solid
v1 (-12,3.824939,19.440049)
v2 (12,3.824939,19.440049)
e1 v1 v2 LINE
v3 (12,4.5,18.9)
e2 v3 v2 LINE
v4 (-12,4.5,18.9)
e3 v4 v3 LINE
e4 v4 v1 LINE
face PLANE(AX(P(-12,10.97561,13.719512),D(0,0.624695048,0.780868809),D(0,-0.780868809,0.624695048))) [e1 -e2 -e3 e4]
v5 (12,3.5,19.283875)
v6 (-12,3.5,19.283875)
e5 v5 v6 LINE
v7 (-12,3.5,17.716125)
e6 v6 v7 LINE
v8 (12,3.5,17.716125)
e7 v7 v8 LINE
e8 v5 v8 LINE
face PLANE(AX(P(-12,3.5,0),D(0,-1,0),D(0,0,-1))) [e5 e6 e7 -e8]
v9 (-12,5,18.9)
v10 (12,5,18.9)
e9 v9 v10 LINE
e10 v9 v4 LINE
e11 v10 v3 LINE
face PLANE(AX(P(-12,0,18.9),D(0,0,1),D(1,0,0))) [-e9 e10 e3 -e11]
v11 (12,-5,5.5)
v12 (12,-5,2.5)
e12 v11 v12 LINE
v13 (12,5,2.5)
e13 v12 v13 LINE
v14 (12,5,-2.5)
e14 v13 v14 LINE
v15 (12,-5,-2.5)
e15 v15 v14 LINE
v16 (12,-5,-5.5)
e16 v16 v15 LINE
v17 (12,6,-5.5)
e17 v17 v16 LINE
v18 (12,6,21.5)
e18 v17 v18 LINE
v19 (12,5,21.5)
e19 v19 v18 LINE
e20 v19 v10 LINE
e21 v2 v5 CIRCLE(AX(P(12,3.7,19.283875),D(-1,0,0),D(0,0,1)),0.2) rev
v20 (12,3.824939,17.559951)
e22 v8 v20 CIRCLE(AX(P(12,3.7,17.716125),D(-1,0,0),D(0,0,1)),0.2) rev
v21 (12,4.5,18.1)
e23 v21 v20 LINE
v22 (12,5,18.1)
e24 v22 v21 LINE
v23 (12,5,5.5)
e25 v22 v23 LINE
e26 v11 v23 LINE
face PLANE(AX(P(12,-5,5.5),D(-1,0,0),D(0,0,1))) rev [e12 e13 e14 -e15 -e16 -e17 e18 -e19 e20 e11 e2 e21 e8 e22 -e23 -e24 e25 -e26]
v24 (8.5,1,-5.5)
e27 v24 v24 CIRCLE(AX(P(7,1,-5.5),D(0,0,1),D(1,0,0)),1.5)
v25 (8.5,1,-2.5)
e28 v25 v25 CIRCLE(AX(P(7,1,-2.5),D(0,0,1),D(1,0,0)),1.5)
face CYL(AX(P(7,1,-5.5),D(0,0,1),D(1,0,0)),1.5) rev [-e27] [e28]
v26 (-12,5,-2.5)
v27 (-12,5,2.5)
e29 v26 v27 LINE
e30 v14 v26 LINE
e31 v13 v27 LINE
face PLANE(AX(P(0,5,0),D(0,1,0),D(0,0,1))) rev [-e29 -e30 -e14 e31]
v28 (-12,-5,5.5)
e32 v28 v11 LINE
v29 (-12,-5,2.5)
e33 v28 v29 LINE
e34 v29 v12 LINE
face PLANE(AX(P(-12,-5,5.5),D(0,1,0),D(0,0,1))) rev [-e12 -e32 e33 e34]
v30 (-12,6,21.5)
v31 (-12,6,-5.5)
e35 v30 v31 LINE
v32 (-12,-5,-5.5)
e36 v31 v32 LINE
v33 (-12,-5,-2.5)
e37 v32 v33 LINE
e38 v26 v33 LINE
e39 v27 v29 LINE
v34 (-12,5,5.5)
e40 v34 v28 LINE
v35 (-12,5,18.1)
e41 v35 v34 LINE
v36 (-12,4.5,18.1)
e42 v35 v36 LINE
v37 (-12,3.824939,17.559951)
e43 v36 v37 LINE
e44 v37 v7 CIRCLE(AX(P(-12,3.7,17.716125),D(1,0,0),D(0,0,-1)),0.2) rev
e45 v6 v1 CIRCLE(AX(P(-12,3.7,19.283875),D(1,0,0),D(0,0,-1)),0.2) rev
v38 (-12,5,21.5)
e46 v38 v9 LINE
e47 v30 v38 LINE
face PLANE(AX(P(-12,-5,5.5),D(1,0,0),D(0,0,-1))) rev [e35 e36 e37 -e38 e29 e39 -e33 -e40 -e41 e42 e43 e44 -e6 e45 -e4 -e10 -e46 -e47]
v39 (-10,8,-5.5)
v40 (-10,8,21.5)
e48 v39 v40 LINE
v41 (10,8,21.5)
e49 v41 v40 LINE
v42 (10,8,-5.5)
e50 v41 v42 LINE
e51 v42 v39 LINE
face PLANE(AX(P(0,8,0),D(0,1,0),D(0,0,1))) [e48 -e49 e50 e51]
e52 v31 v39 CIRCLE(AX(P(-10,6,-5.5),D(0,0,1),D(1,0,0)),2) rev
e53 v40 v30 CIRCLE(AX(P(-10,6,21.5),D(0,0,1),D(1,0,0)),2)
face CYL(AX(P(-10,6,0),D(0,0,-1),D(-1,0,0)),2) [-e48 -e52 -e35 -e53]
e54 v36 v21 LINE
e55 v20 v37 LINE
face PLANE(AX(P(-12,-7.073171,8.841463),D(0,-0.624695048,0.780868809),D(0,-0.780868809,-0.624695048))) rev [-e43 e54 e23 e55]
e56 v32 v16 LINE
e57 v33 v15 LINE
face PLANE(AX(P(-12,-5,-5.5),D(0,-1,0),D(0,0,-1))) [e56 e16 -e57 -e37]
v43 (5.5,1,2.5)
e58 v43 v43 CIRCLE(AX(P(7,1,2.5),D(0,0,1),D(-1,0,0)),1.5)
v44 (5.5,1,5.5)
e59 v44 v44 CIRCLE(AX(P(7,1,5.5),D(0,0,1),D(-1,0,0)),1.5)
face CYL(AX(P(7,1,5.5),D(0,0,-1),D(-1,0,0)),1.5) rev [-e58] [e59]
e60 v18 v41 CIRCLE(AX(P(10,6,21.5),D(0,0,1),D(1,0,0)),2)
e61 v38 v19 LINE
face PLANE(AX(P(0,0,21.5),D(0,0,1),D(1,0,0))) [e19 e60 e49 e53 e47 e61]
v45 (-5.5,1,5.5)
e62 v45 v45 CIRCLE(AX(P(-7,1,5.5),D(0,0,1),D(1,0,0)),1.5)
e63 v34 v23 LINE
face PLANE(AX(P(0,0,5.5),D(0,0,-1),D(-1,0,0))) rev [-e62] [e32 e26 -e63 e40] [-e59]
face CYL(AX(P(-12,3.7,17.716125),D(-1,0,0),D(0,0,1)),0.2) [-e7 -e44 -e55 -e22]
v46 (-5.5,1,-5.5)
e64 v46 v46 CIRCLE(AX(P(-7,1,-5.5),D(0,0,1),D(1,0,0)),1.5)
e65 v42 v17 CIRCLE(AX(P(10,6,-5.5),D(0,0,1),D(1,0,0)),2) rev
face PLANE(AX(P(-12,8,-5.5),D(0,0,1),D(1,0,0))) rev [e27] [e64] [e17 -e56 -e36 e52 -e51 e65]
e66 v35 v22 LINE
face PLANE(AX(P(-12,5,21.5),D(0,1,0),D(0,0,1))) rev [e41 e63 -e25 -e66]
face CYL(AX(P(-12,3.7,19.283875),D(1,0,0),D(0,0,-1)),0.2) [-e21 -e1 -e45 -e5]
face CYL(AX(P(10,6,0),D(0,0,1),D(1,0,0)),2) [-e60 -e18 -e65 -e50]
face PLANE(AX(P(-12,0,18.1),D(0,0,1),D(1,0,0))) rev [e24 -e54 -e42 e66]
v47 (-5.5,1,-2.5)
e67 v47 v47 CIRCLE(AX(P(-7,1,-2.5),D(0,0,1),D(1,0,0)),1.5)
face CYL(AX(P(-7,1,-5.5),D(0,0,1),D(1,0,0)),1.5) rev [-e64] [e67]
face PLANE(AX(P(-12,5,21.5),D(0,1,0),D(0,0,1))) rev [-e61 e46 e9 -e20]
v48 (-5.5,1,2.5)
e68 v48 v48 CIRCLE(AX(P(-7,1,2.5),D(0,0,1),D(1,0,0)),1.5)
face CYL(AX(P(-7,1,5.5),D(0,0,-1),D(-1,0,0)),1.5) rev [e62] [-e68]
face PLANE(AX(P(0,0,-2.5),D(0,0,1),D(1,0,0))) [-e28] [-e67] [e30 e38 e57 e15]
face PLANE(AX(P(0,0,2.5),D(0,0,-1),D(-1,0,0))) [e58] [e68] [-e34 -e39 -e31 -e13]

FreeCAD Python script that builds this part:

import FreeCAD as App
import Part
import Sketcher
from FreeCAD import Vector


def edges_at(feature, points):
    """Names of the edges that pass closest to the given points."""
    edges = feature.Shape.Edges
    near = lambda p: min(range(len(edges)), key=lambda i: edges[i].distToShape(Part.Vertex(*p))[0])
    return sorted({f"Edge{near(p) + 1}" for p in points})


def add_polygon(sketch, points):
    """Adds a closed chain of lines whose ends are joined by coincident constraints."""
    first, n = sketch.GeometryCount, len(points)
    for a, b in zip(points, points[1:] + points[:1]):
        sketch.addGeometry(Part.LineSegment(App.Vector(*a, 0), App.Vector(*b, 0)), False)
    for i in range(n):
        sketch.addConstraint(Sketcher.Constraint("Coincident", first + i, 2, first + (i + 1) % n, 1))

doc = App.newDocument("Part")
body = doc.addObject("PartDesign::Body", "Body")

# Sketch on XY plane
sketch1 = body.newObject("Sketcher::SketchObject", "Sketch")
sketch1.AttachmentSupport = (doc.getObject("XY_Plane"), [""])
sketch1.MapMode = "FlatFace"
sketch1.AttachmentOffset = App.Placement(Vector(0, 0, 2.5), App.Rotation())
add_polygon(sketch1, [(-12, 5), (-12, -5), (12, -5), (12, 5)])  # lines 0-3
sketch1.addGeometry(Part.Circle(Vector(-7, 1, 0), Vector(0, 0, 1), 1.5), False)  # 4
sketch1.addGeometry(Part.Circle(Vector(7, 1, 0), Vector(0, 0, 1), 1.5), False)  # 5
sketch1.addConstraint([
    Sketcher.Constraint("Vertical", 0),
    Sketcher.Constraint("Horizontal", 1),
    Sketcher.Constraint("Vertical", 2),
    Sketcher.Constraint("Horizontal", 3),
    Sketcher.Constraint("Equal", 4, 5),
    Sketcher.Constraint("Symmetric", 0, 2, 2, 2, -1, 1),
    Sketcher.Constraint("Symmetric", 4, 3, 5, 3, -2),
    Sketcher.Constraint("Diameter", 4, 3.0),
    Sketcher.Constraint("DistanceX", 1, 1, 1, 2, 24.0),
    Sketcher.Constraint("DistanceY", 0, 2, 0, 1, 10.0),
    Sketcher.Constraint("DistanceX", 4, 3, -1, 1, 7.0),
    Sketcher.Constraint("DistanceY", -1, 1, 4, 3, 1.0),
])
pad1 = body.newObject("PartDesign::Pad", "Pad")
pad1.Profile = sketch1
pad1.Length = 3
body2 = doc.addObject("PartDesign::Body", "Body001")

# Sketch on XY plane
sketch2 = body2.newObject("Sketcher::SketchObject", "Sketch001")
sketch2.AttachmentSupport = (doc.getObject("XY_Plane001"), [""])
sketch2.MapMode = "FlatFace"
sketch2.AttachmentOffset = App.Placement(Vector(0, 0, -2.5), App.Rotation())
add_polygon(sketch2, [(-12, 5), (-12, -5), (12, -5), (12, 5)])  # lines 0-3
sketch2.addGeometry(Part.Circle(Vector(-7, 1, 0), Vector(0, 0, 1), 1.5), False)  # 4
sketch2.addGeometry(Part.Circle(Vector(7, 1, 0), Vector(0, 0, 1), 1.5), False)  # 5
sketch2.addConstraint([
    Sketcher.Constraint("Vertical", 0),
    Sketcher.Constraint("Horizontal", 1),
    Sketcher.Constraint("Vertical", 2),
    Sketcher.Constraint("Horizontal", 3),
    Sketcher.Constraint("Equal", 4, 5),
    Sketcher.Constraint("Symmetric", 0, 2, 2, 2, -1, 1),
    Sketcher.Constraint("Symmetric", 4, 3, 5, 3, -2),
    Sketcher.Constraint("Diameter", 4, 3.0),
    Sketcher.Constraint("DistanceX", 1, 1, 1, 2, 24.0),
    Sketcher.Constraint("DistanceY", 0, 2, 0, 1, 10.0),
    Sketcher.Constraint("DistanceX", 4, 3, -1, 1, 7.0),
    Sketcher.Constraint("DistanceY", -1, 1, 4, 3, 1.0),
])
pad2 = body2.newObject("PartDesign::Pad", "Pad001")
pad2.Profile = sketch2
pad2.Length = 3
pad2.Reversed = True
body.AllowCompound = True
doc.recompute()

boolean = body.newObject("PartDesign::Boolean", "Boolean")
boolean.Type = "Fuse"
boolean.addObjects([body2])

# Sketch on XZ plane
sketch3 = body.newObject("Sketcher::SketchObject", "Sketch002")
sketch3.AttachmentSupport = (doc.getObject("XZ_Plane"), [""])
sketch3.MapMode = "FlatFace"
sketch3.AttachmentOffset = App.Placement(Vector(0, 0, -5), App.Rotation())
add_polygon(sketch3, [(-12, -6), (-12, 6), (12, 6), (12, -6)])  # lines 0-3
sketch3.addConstraint([
    Sketcher.Constraint("Vertical", 0),
    Sketcher.Constraint("Horizontal", 1),
    Sketcher.Constraint("Vertical", 2),
    Sketcher.Constraint("Horizontal", 3),
    Sketcher.Constraint("Symmetric", 0, 2, 2, 2, -1, 1),
    Sketcher.Constraint("DistanceX", 1, 1, 1, 2, 24.0),
    Sketcher.Constraint("DistanceY", 0, 1, 0, 2, 11.0),
])
pad3 = body.newObject("PartDesign::Pad", "Pad002")
pad3.Profile = sketch3
pad3.Length = 3
pad3.Reversed = True

# Sketch on XY plane
sketch4 = body.newObject("Sketcher::SketchObject", "Sketch003")
sketch4.AttachmentSupport = (doc.getObject("XY_Plane"), [""])
sketch4.MapMode = "FlatFace"
sketch4.AttachmentOffset = App.Placement(Vector(0, 0, 5.5), App.Rotation())
add_polygon(sketch4, [(-12, 8), (-12, 5), (12, 5), (12, 8)])  # lines 0-3
sketch4.addConstraint([
    Sketcher.Constraint("Vertical", 0),
    Sketcher.Constraint("Horizontal", 1),
    Sketcher.Constraint("Vertical", 2),
    Sketcher.Constraint("Horizontal", 3),
    Sketcher.Constraint("DistanceX", 1, 1, 1, 2, 24.0),
    Sketcher.Constraint("DistanceY", 0, 2, 0, 1, 3.0),
    Sketcher.Constraint("DistanceX", 0, 2, -1, 1, 12.0),
    Sketcher.Constraint("DistanceY", -1, 1, 0, 2, 5.0),
])
pad4 = body.newObject("PartDesign::Pad", "Pad003")
pad4.Profile = sketch4
pad4.Length = 16

# Sketch on YZ plane
sketch5 = body.newObject("Sketcher::SketchObject", "Sketch004")
sketch5.AttachmentSupport = (doc.getObject("YZ_Plane"), [""])
sketch5.MapMode = "FlatFace"
sketch5.AttachmentOffset = App.Placement(Vector(0, 0, 12), App.Rotation())
add_polygon(sketch5, [(3.5, 17.3), (4.5, 18.1), (5, 18.1), (5, 18.9), (4.5, 18.9), (3.5, 19.7)])  # lines 0-5
sketch5.addConstraint([
    Sketcher.Constraint("Horizontal", 1),
    Sketcher.Constraint("Vertical", 2),
    Sketcher.Constraint("Horizontal", 3),
    Sketcher.Constraint("Vertical", 5),
    Sketcher.Constraint("Vertical", 0, 2, 3, 2),
    Sketcher.Constraint("Equal", 0, 4),
    Sketcher.Constraint("DistanceX", 1, 1, 1, 2, 0.5),
    Sketcher.Constraint("DistanceY", 2, 1, 2, 2, 0.8),
    Sketcher.Constraint("DistanceY", 5, 2, 5, 1, 2.4),
    Sketcher.Constraint("DistanceX", -1, 1, 1, 2, 5.0),
    Sketcher.Constraint("DistanceX", 4, 2, 3, 2, 1.0),
    Sketcher.Constraint("DistanceY", -1, 1, 0, 2, 18.1),
])
pad5 = body.newObject("PartDesign::Pad", "Pad004")
pad5.Profile = sketch5
pad5.Length = 24
pad5.Reversed = True
doc.recompute()

fillet = body.newObject("PartDesign::Fillet", "Fillet")
fillet.Base = (pad5, edges_at(pad5, [(0, 3.5, 17.3), (0, 3.5, 19.7)]))
fillet.Radius = 0.2
doc.recompute()

fillet2 = body.newObject("PartDesign::Fillet", "Fillet001")
fillet2.Base = (fillet, edges_at(fillet, [(-12, 8, 8), (12, 8, 8)]))
fillet2.Radius = 2

doc.recompute()
